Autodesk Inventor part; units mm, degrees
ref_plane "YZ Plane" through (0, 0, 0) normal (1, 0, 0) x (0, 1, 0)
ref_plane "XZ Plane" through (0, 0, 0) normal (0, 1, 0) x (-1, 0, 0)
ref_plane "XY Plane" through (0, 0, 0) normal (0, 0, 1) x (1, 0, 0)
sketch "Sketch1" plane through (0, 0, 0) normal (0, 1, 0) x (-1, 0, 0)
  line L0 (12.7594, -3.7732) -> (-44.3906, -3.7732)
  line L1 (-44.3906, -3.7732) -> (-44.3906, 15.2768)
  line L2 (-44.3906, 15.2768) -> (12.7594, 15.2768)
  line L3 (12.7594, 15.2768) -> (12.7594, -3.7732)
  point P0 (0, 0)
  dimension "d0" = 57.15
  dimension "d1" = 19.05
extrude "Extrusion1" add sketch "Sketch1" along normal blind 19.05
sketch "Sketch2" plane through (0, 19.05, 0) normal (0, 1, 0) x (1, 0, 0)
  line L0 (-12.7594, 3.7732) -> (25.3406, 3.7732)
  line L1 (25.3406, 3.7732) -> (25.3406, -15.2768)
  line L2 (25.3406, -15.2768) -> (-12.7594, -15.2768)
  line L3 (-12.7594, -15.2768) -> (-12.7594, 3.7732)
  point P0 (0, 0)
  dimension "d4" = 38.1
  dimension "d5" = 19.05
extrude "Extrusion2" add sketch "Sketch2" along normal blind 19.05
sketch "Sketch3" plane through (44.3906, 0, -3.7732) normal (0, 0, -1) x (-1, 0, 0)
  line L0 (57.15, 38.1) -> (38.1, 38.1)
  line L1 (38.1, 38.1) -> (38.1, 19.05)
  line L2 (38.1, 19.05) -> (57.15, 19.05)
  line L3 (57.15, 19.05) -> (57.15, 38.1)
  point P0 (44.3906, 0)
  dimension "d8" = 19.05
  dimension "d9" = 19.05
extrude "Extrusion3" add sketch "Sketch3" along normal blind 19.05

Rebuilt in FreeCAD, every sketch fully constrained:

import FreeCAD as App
import Part
import Sketcher
from FreeCAD import Vector
Q = App.Units.Quantity


def add_polygon(sketch, points):
    """Adds a closed chain of lines whose ends are joined by coincident constraints."""
    first, n = sketch.GeometryCount, len(points)
    for a, b in zip(points, points[1:] + points[:1]):
        sketch.addGeometry(Part.LineSegment(App.Vector(*a, 0), App.Vector(*b, 0)), False)
    for i in range(n):
        sketch.addConstraint(Sketcher.Constraint("Coincident", first + i, 2, first + (i + 1) % n, 1))

doc = App.newDocument("Part")
body = doc.addObject("PartDesign::Body", "Body")

sketch1 = body.newObject("Sketcher::SketchObject", "Sketch")
sketch1.AttachmentSupport = (doc.getObject("XZ_Plane"), [""])
sketch1.MapMode = "FlatFace"
add_polygon(sketch1, [(44, -4), (-13, -4), (-13, 15), (44, 15)])
sketch1.addConstraint(Sketcher.Constraint("Horizontal", 0))
sketch1.addConstraint(Sketcher.Constraint("Vertical", 1))
sketch1.addConstraint(Sketcher.Constraint("Horizontal", 2))
sketch1.addConstraint(Sketcher.Constraint("Vertical", 3))
sketch1.addConstraint(Sketcher.Constraint("DistanceX", 0, 2, 0, 1, Q("2.25 in")))
sketch1.addConstraint(Sketcher.Constraint("DistanceY", 1, 1, 1, 2, Q("0.75 in")))
sketch1.addConstraint(Sketcher.Constraint("DistanceX", 0, 2, -1, 1, Q("12.7594 mm")))
sketch1.addConstraint(Sketcher.Constraint("DistanceY", 0, 2, -1, 1, Q("3.7732 mm")))
pad1 = body.newObject("PartDesign::Pad", "Pad")
pad1.Profile = sketch1
pad1.Length = Q("0.75 in")
pad1.Reversed = True

sketch2 = body.newObject("Sketcher::SketchObject", "Sketch001")
sketch2.AttachmentSupport = (doc.getObject("XZ_Plane"), [""])
sketch2.MapMode = "FlatFace"
sketch2.AttachmentOffset = App.Placement(Vector(0, 0, -0.75 * 25.4), App.Rotation())
add_polygon(sketch2, [(25, -4), (-13, -4), (-13, 15), (25, 15)])
sketch2.addConstraint(Sketcher.Constraint("Horizontal", 0))
sketch2.addConstraint(Sketcher.Constraint("Vertical", 1))
sketch2.addConstraint(Sketcher.Constraint("Horizontal", 2))
sketch2.addConstraint(Sketcher.Constraint("Vertical", 3))
sketch2.addConstraint(Sketcher.Constraint("DistanceX", 0, 2, 0, 1, Q("1.5 in")))
sketch2.addConstraint(Sketcher.Constraint("DistanceY", 1, 1, 1, 2, Q("0.75 in")))
sketch2.addConstraint(Sketcher.Constraint("DistanceX", 0, 2, -1, 1, Q("12.7594 mm")))
sketch2.addConstraint(Sketcher.Constraint("DistanceY", 0, 2, -1, 1, Q("3.7732 mm")))
pad2 = body.newObject("PartDesign::Pad", "Pad001")
pad2.Profile = sketch2
pad2.Length = Q("0.75 in")
pad2.Reversed = True

sketch3 = body.newObject("Sketcher::SketchObject", "Sketch002")
sketch3.AttachmentSupport = (doc.getObject("XY_Plane"), [""])
sketch3.MapMode = "FlatFace"
sketch3.AttachmentOffset = App.Placement(Vector(0, 0, -3.7732), App.Rotation())
add_polygon(sketch3, [(-13, 19), (-13, 38), (6, 38), (6, 19)])
sketch3.addConstraint(Sketcher.Constraint("Vertical", 0))
sketch3.addConstraint(Sketcher.Constraint("Horizontal", 1))
sketch3.addConstraint(Sketcher.Constraint("Vertical", 2))
sketch3.addConstraint(Sketcher.Constraint("Horizontal", 3))
sketch3.addConstraint(Sketcher.Constraint("Equal", 3, 0))
sketch3.addConstraint(Sketcher.Constraint("DistanceX", 1, 1, 1, 2, Q("0.75 in")))
sketch3.addConstraint(Sketcher.Constraint("DistanceY", -1, 1, 2, 2, Q("0.75 in")))
sketch3.addConstraint(Sketcher.Constraint("DistanceX", 0, 2, -1, 1, Q("12.7594 mm")))
pad3 = body.newObject("PartDesign::Pad", "Pad002")
pad3.Profile = sketch3
pad3.Length = Q("0.75 in")
pad3.Reversed = True

doc.recompute()
